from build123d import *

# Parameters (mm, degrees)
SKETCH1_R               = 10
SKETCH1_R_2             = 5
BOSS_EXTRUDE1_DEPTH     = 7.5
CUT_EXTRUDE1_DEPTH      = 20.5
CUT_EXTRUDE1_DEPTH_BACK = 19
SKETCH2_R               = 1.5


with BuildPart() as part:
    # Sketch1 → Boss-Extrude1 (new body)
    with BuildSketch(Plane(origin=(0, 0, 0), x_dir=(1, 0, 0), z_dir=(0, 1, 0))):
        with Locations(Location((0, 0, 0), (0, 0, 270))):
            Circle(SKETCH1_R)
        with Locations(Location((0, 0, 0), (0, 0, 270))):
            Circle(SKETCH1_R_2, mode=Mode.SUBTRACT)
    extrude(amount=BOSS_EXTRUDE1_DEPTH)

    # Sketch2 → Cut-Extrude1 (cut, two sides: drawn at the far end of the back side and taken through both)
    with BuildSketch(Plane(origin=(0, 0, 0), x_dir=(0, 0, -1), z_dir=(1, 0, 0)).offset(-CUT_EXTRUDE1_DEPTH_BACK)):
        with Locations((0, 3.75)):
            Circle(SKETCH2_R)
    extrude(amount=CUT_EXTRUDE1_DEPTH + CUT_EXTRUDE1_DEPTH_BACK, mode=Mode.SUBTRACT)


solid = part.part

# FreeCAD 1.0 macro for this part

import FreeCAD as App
import Part
import Sketcher

V = App.Vector

doc = App.newDocument("Part")
body = doc.addObject("PartDesign::Body", "Body")

sketch1 = body.newObject("Sketcher::SketchObject", "Sketch")
sketch1.AttachmentSupport = (doc.getObject("XZ_Plane"), [""])
sketch1.MapMode = "FlatFace"
sketch1.addGeometry([
    Part.Circle(V(0, 0, 0), V(0, 0, 1), 10),
    Part.Circle(V(0, 0, 0), V(0, 0, 1), 5),
], False)
sketch1.addConstraint([
    Sketcher.Constraint("Coincident", 0, 3, -1, 1),
    Sketcher.Constraint("Coincident", 1, 3, -1, 1),
    Sketcher.Constraint("Diameter", 0, 20.0),
    Sketcher.Constraint("Diameter", 1, 10.0),
])
pad1 = body.newObject("PartDesign::Pad", "Pad")
pad1.Profile = sketch1
pad1.Length = 7.5
pad1.Reversed = True

sketch2 = body.newObject("Sketcher::SketchObject", "Sketch001")
sketch2.AttachmentSupport = (doc.getObject("YZ_Plane"), [""])
sketch2.MapMode = "FlatFace"
sketch2.addGeometry(Part.Circle(V(3.75, 0, 0), V(0, 0, 1), 1.5), False)
sketch2.addConstraint([
    Sketcher.Constraint("PointOnObject", 0, 3, -1),
    Sketcher.Constraint("Diameter", 0, 3.0),
    Sketcher.Constraint("DistanceX", -1, 1, 0, 3, 3.75),
])
pocket1 = body.newObject("PartDesign::Pocket", "Pocket")
pocket1.Profile = sketch2
pocket1.Type = "ThroughAll"
pocket1.Midplane = True

doc.recompute()
